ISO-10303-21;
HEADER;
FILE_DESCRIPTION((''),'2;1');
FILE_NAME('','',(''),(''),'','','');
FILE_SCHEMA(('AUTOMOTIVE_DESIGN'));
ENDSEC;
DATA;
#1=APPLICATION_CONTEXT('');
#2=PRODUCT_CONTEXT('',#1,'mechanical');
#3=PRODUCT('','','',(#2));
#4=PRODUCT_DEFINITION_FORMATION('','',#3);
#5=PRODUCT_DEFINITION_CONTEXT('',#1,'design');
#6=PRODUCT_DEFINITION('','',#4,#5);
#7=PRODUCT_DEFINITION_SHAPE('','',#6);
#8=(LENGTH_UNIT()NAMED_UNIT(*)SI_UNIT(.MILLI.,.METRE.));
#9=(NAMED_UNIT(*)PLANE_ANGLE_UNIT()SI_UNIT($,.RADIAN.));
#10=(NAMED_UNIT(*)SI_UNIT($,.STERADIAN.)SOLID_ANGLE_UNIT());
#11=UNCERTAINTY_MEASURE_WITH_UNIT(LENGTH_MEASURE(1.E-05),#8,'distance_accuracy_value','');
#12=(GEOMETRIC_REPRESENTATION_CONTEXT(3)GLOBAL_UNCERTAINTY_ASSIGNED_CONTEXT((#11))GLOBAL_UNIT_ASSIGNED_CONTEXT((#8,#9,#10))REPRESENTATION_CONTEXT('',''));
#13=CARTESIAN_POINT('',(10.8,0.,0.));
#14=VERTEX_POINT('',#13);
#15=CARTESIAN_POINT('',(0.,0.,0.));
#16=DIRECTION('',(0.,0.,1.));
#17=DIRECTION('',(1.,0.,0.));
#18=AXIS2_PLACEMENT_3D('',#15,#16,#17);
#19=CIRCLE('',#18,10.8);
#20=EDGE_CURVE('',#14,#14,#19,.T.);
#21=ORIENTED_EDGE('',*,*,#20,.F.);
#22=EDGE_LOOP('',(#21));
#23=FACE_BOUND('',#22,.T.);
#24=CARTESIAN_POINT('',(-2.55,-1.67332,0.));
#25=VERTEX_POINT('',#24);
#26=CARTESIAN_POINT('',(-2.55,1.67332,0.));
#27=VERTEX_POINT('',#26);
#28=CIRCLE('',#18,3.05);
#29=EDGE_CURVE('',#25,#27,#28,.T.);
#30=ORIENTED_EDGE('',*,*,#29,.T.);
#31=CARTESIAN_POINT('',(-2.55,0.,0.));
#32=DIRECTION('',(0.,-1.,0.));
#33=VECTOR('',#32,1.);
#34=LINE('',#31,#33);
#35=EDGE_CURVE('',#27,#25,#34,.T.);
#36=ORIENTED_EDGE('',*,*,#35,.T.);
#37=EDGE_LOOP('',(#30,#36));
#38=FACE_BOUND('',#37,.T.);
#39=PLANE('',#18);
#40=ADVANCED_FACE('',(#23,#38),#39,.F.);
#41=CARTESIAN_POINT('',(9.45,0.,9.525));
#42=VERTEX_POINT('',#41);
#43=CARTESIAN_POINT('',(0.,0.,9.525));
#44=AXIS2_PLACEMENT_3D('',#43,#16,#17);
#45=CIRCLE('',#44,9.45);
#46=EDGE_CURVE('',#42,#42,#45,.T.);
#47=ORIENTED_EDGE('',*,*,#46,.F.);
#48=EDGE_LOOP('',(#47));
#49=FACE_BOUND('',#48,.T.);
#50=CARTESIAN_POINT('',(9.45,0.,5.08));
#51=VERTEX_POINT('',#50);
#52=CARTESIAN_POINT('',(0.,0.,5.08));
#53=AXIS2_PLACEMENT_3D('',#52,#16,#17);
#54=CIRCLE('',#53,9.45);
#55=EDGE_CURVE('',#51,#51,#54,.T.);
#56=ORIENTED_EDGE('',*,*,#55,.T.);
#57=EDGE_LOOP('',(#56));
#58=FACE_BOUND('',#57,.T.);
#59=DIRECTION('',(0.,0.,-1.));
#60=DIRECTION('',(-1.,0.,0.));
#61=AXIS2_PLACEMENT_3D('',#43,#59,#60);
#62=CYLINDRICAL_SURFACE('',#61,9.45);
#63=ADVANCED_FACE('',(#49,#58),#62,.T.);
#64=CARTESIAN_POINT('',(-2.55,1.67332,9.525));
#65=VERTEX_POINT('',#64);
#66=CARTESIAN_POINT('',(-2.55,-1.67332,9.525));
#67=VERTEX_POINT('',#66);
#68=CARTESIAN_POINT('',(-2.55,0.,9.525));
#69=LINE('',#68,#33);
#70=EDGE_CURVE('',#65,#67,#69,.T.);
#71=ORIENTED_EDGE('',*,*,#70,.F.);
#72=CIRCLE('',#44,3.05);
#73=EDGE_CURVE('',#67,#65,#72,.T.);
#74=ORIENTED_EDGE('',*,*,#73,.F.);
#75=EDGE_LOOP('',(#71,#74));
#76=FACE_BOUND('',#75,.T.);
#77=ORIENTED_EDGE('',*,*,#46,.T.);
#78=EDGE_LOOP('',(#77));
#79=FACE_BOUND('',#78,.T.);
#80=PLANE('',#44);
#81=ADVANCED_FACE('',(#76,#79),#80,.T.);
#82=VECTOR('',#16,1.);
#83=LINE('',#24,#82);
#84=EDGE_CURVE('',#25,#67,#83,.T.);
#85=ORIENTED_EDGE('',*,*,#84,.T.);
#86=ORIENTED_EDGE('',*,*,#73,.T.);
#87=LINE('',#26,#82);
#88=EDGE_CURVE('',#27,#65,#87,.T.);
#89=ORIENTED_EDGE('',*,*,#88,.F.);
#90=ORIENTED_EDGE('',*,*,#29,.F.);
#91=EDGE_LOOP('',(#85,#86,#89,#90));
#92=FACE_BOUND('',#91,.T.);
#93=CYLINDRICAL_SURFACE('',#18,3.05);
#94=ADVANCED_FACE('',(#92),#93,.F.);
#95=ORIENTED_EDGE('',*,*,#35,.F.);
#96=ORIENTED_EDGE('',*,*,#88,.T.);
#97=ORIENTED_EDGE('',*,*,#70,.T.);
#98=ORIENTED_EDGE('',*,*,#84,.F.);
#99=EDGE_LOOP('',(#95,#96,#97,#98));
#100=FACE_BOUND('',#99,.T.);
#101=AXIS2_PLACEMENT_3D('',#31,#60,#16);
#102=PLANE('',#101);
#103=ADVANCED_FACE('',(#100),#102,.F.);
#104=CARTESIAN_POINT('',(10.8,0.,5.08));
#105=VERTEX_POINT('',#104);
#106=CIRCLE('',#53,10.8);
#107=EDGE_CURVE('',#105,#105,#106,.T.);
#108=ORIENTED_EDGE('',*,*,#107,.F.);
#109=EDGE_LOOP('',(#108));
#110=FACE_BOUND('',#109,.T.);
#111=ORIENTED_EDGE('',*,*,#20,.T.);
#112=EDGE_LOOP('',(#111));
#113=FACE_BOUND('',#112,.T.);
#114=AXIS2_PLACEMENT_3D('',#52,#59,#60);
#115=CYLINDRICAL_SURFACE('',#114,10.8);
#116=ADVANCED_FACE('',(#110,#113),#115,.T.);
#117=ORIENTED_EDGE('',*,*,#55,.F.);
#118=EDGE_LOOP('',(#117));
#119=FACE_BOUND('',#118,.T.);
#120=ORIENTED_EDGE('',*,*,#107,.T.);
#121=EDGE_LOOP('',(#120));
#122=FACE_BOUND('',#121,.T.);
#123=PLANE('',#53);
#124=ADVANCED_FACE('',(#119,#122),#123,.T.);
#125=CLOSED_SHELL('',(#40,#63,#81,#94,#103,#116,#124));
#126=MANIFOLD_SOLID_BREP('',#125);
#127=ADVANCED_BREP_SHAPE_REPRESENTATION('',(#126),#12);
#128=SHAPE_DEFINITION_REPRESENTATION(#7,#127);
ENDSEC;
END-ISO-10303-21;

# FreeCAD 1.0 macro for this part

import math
import FreeCAD as App
import Part
import Sketcher
from FreeCAD import Vector

doc = App.newDocument("Part")
body = doc.addObject("PartDesign::Body", "Body")

# Sketch on XY plane
sketch1 = body.newObject("Sketcher::SketchObject", "Sketch")
sketch1.AttachmentSupport = (doc.getObject("XY_Plane"), [""])
sketch1.MapMode = "FlatFace"
sketch1.addGeometry(Part.Circle(Vector(0, 0, 0), Vector(0, 0, 1), 11), False)
sketch1.addConstraint(Sketcher.Constraint("Coincident", 0, 3, -1, 1))
sketch1.addConstraint(Sketcher.Constraint("Diameter", 0, 21.6))
pad1 = body.newObject("PartDesign::Pad", "Pad")
pad1.Profile = sketch1
pad1.Length = 5.08

# Sketch on XY plane
sketch2 = body.newObject("Sketcher::SketchObject", "Sketch001")
sketch2.AttachmentSupport = (doc.getObject("XY_Plane"), [""])
sketch2.MapMode = "FlatFace"
sketch2.AttachmentOffset = App.Placement(Vector(0, 0, 5.08), App.Rotation())
sketch2.addGeometry(Part.Circle(Vector(0, 0, 0), Vector(0, 0, 1), 9), False)
sketch2.addConstraint(Sketcher.Constraint("Coincident", 0, 3, -1, 1))
sketch2.addConstraint(Sketcher.Constraint("Diameter", 0, 18.9))
pad2 = body.newObject("PartDesign::Pad", "Pad001")
pad2.Profile = sketch2
pad2.Length = 4.445

# Sketch on XY plane
sketch3 = body.newObject("Sketcher::SketchObject", "Sketch002")
sketch3.AttachmentSupport = (doc.getObject("XY_Plane"), [""])
sketch3.MapMode = "FlatFace"
sketch3.AttachmentOffset = App.Placement(Vector(0, 0, 9.525), App.Rotation())
sketch3.addGeometry(Part.ArcOfCircle(Part.Circle(Vector(0, 0, 0), Vector(0, 0, 1), 3), math.radians(-147), math.radians(147)), False)
sketch3.addGeometry(Part.LineSegment(Vector(-2.5, 1.7, 0), Vector(-2.5, -1.7, 0)), False)
sketch3.addConstraint(Sketcher.Constraint("Coincident", 0, 1, 1, 2))
sketch3.addConstraint(Sketcher.Constraint("Coincident", 1, 1, 0, 2))
sketch3.addConstraint(Sketcher.Constraint("Vertical", 1))
sketch3.addConstraint(Sketcher.Constraint("Coincident", 0, 3, -1, 1))
sketch3.addConstraint(Sketcher.Constraint("Radius", 0, 3.05))
sketch3.addConstraint(Sketcher.Constraint("DistanceX", 0, 1, -1, 1, 2.55))
pocket1 = body.newObject("PartDesign::Pocket", "Pocket")
pocket1.Profile = sketch3
pocket1.Type = "ThroughAll"

doc.recompute()
